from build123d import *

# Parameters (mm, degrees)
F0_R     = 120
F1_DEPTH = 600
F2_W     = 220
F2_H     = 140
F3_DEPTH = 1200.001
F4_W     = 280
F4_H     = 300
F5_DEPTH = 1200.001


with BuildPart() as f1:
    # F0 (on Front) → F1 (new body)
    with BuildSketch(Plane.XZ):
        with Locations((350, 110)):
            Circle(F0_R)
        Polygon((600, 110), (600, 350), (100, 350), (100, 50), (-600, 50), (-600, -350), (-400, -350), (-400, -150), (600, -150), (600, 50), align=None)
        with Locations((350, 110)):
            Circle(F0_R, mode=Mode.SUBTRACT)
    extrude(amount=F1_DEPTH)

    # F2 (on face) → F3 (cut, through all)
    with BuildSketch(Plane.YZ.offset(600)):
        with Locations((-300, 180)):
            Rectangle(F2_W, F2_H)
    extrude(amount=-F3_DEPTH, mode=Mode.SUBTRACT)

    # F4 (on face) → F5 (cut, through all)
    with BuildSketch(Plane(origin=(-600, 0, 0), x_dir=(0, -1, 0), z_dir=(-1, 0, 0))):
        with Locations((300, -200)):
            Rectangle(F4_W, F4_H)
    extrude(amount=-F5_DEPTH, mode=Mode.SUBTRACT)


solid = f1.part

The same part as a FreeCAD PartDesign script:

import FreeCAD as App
import Part
import Sketcher

doc = App.newDocument("Part")
body = doc.addObject("PartDesign::Body", "Body")

# Sketch on XZ plane
sketch1 = body.newObject("Sketcher::SketchObject", "Sketch")
sketch1.AttachmentSupport = (doc.getObject("XZ_Plane"), [""])
sketch1.MapMode = "FlatFace"
sketch1.addGeometry(Part.LineSegment(App.Vector(600, 350, 0), App.Vector(100, 350, 0)), False)
sketch1.addGeometry(Part.LineSegment(App.Vector(100, 350, 0), App.Vector(100, 50, 0)), False)
sketch1.addGeometry(Part.LineSegment(App.Vector(100, 50, 0), App.Vector(-600, 50, 0)), False)
sketch1.addGeometry(Part.LineSegment(App.Vector(-600, 50, 0), App.Vector(-600, -350, 0)), False)
sketch1.addGeometry(Part.LineSegment(App.Vector(-600, -350, 0), App.Vector(-400, -350, 0)), False)
sketch1.addGeometry(Part.LineSegment(App.Vector(-400, -350, 0), App.Vector(-400, -150, 0)), False)
sketch1.addGeometry(Part.LineSegment(App.Vector(-400, -150, 0), App.Vector(600, -150, 0)), False)
sketch1.addGeometry(Part.LineSegment(App.Vector(600, -150, 0), App.Vector(600, 350, 0)), False)
sketch1.addGeometry(Part.Circle(App.Vector(350, 110, 0), App.Vector(0, 0, 1), 120), False)
sketch1.addConstraint(Sketcher.Constraint("Coincident", 0, 2, 1, 1))
sketch1.addConstraint(Sketcher.Constraint("Coincident", 1, 2, 2, 1))
sketch1.addConstraint(Sketcher.Constraint("Coincident", 2, 2, 3, 1))
sketch1.addConstraint(Sketcher.Constraint("Coincident", 3, 2, 4, 1))
sketch1.addConstraint(Sketcher.Constraint("Coincident", 4, 2, 5, 1))
sketch1.addConstraint(Sketcher.Constraint("Coincident", 5, 2, 6, 1))
sketch1.addConstraint(Sketcher.Constraint("Coincident", 6, 2, 7, 1))
sketch1.addConstraint(Sketcher.Constraint("Coincident", 7, 2, 0, 1))
sketch1.addConstraint(Sketcher.Constraint("Horizontal", 0))
sketch1.addConstraint(Sketcher.Constraint("Vertical", 1))
sketch1.addConstraint(Sketcher.Constraint("Horizontal", 2))
sketch1.addConstraint(Sketcher.Constraint("Vertical", 3))
sketch1.addConstraint(Sketcher.Constraint("Horizontal", 4))
sketch1.addConstraint(Sketcher.Constraint("Vertical", 5))
sketch1.addConstraint(Sketcher.Constraint("Horizontal", 6))
sketch1.addConstraint(Sketcher.Constraint("Vertical", 7))
sketch1.addConstraint(Sketcher.Constraint("Symmetric", 3, 2, 7, 2, -1, 1))
sketch1.addConstraint(Sketcher.Constraint("Equal", 4, 5))
sketch1.addConstraint(Sketcher.Constraint("Equal", 0, 7))
sketch1.addConstraint(Sketcher.Constraint("Diameter", 8, 240.0))
sketch1.addConstraint(Sketcher.Constraint("DistanceX", 0, 2, 0, 1, 500.0))
sketch1.addConstraint(Sketcher.Constraint("DistanceX", 2, 2, 2, 1, 700.0))
sketch1.addConstraint(Sketcher.Constraint("DistanceX", 4, 1, 4, 2, 200.0))
sketch1.addConstraint(Sketcher.Constraint("DistanceY", 1, 2, 1, 1, 300.0))
sketch1.addConstraint(Sketcher.Constraint("DistanceX", -1, 1, 8, 3, 350.0))
sketch1.addConstraint(Sketcher.Constraint("DistanceY", -1, 1, 8, 3, 110.0))
pad1 = body.newObject("PartDesign::Pad", "Pad")
pad1.Profile = sketch1
pad1.Length = 600

# Sketch on YZ plane
sketch2 = body.newObject("Sketcher::SketchObject", "Sketch001")
sketch2.AttachmentSupport = (doc.getObject("YZ_Plane"), [""])
sketch2.MapMode = "FlatFace"
sketch2.AttachmentOffset = App.Placement(App.Vector(0, 0, 600), App.Rotation())
sketch2.addGeometry(Part.LineSegment(App.Vector(-410, 250, 0), App.Vector(-410, 110, 0)), False)
sketch2.addGeometry(Part.LineSegment(App.Vector(-410, 110, 0), App.Vector(-190, 110, 0)), False)
sketch2.addGeometry(Part.LineSegment(App.Vector(-190, 110, 0), App.Vector(-190, 250, 0)), False)
sketch2.addGeometry(Part.LineSegment(App.Vector(-190, 250, 0), App.Vector(-410, 250, 0)), False)
sketch2.addConstraint(Sketcher.Constraint("Coincident", 0, 2, 1, 1))
sketch2.addConstraint(Sketcher.Constraint("Coincident", 1, 2, 2, 1))
sketch2.addConstraint(Sketcher.Constraint("Coincident", 2, 2, 3, 1))
sketch2.addConstraint(Sketcher.Constraint("Coincident", 3, 2, 0, 1))
sketch2.addConstraint(Sketcher.Constraint("Vertical", 0))
sketch2.addConstraint(Sketcher.Constraint("Horizontal", 1))
sketch2.addConstraint(Sketcher.Constraint("Vertical", 2))
sketch2.addConstraint(Sketcher.Constraint("Horizontal", 3))
sketch2.addConstraint(Sketcher.Constraint("DistanceX", 1, 1, 1, 2, 220.0))
sketch2.addConstraint(Sketcher.Constraint("DistanceY", 0, 2, 0, 1, 140.0))
sketch2.addConstraint(Sketcher.Constraint("DistanceX", 0, 2, -1, 1, 410.0))
sketch2.addConstraint(Sketcher.Constraint("DistanceY", -1, 1, 0, 2, 110.0))
pocket1 = body.newObject("PartDesign::Pocket", "Pocket")
pocket1.Profile = sketch2
pocket1.Type = "ThroughAll"

# Sketch on YZ plane
sketch3 = body.newObject("Sketcher::SketchObject", "Sketch002")
sketch3.AttachmentSupport = (doc.getObject("YZ_Plane"), [""])
sketch3.MapMode = "FlatFace"
sketch3.AttachmentOffset = App.Placement(App.Vector(0, 0, -600), App.Rotation())
sketch3.addGeometry(Part.LineSegment(App.Vector(-160, -50, 0), App.Vector(-160, -350, 0)), False)
sketch3.addGeometry(Part.LineSegment(App.Vector(-160, -350, 0), App.Vector(-440, -350, 0)), False)
sketch3.addGeometry(Part.LineSegment(App.Vector(-440, -350, 0), App.Vector(-440, -50, 0)), False)
sketch3.addGeometry(Part.LineSegment(App.Vector(-440, -50, 0), App.Vector(-160, -50, 0)), False)
sketch3.addConstraint(Sketcher.Constraint("Coincident", 0, 2, 1, 1))
sketch3.addConstraint(Sketcher.Constraint("Coincident", 1, 2, 2, 1))
sketch3.addConstraint(Sketcher.Constraint("Coincident", 2, 2, 3, 1))
sketch3.addConstraint(Sketcher.Constraint("Coincident", 3, 2, 0, 1))
sketch3.addConstraint(Sketcher.Constraint("Vertical", 0))
sketch3.addConstraint(Sketcher.Constraint("Horizontal", 1))
sketch3.addConstraint(Sketcher.Constraint("Vertical", 2))
sketch3.addConstraint(Sketcher.Constraint("Horizontal", 3))
sketch3.addConstraint(Sketcher.Constraint("DistanceX", 1, 2, 1, 1, 280.0))
sketch3.addConstraint(Sketcher.Constraint("DistanceY", 0, 2, 0, 1, 300.0))
sketch3.addConstraint(Sketcher.Constraint("DistanceX", 0, 2, -1, 1, 160.0))
sketch3.addConstraint(Sketcher.Constraint("DistanceY", 0, 2, -1, 1, 350.0))
pocket2 = body.newObject("PartDesign::Pocket", "Pocket001")
pocket2.Profile = sketch3
pocket2.Type = "ThroughAll"
pocket2.Reversed = True

doc.recompute()
